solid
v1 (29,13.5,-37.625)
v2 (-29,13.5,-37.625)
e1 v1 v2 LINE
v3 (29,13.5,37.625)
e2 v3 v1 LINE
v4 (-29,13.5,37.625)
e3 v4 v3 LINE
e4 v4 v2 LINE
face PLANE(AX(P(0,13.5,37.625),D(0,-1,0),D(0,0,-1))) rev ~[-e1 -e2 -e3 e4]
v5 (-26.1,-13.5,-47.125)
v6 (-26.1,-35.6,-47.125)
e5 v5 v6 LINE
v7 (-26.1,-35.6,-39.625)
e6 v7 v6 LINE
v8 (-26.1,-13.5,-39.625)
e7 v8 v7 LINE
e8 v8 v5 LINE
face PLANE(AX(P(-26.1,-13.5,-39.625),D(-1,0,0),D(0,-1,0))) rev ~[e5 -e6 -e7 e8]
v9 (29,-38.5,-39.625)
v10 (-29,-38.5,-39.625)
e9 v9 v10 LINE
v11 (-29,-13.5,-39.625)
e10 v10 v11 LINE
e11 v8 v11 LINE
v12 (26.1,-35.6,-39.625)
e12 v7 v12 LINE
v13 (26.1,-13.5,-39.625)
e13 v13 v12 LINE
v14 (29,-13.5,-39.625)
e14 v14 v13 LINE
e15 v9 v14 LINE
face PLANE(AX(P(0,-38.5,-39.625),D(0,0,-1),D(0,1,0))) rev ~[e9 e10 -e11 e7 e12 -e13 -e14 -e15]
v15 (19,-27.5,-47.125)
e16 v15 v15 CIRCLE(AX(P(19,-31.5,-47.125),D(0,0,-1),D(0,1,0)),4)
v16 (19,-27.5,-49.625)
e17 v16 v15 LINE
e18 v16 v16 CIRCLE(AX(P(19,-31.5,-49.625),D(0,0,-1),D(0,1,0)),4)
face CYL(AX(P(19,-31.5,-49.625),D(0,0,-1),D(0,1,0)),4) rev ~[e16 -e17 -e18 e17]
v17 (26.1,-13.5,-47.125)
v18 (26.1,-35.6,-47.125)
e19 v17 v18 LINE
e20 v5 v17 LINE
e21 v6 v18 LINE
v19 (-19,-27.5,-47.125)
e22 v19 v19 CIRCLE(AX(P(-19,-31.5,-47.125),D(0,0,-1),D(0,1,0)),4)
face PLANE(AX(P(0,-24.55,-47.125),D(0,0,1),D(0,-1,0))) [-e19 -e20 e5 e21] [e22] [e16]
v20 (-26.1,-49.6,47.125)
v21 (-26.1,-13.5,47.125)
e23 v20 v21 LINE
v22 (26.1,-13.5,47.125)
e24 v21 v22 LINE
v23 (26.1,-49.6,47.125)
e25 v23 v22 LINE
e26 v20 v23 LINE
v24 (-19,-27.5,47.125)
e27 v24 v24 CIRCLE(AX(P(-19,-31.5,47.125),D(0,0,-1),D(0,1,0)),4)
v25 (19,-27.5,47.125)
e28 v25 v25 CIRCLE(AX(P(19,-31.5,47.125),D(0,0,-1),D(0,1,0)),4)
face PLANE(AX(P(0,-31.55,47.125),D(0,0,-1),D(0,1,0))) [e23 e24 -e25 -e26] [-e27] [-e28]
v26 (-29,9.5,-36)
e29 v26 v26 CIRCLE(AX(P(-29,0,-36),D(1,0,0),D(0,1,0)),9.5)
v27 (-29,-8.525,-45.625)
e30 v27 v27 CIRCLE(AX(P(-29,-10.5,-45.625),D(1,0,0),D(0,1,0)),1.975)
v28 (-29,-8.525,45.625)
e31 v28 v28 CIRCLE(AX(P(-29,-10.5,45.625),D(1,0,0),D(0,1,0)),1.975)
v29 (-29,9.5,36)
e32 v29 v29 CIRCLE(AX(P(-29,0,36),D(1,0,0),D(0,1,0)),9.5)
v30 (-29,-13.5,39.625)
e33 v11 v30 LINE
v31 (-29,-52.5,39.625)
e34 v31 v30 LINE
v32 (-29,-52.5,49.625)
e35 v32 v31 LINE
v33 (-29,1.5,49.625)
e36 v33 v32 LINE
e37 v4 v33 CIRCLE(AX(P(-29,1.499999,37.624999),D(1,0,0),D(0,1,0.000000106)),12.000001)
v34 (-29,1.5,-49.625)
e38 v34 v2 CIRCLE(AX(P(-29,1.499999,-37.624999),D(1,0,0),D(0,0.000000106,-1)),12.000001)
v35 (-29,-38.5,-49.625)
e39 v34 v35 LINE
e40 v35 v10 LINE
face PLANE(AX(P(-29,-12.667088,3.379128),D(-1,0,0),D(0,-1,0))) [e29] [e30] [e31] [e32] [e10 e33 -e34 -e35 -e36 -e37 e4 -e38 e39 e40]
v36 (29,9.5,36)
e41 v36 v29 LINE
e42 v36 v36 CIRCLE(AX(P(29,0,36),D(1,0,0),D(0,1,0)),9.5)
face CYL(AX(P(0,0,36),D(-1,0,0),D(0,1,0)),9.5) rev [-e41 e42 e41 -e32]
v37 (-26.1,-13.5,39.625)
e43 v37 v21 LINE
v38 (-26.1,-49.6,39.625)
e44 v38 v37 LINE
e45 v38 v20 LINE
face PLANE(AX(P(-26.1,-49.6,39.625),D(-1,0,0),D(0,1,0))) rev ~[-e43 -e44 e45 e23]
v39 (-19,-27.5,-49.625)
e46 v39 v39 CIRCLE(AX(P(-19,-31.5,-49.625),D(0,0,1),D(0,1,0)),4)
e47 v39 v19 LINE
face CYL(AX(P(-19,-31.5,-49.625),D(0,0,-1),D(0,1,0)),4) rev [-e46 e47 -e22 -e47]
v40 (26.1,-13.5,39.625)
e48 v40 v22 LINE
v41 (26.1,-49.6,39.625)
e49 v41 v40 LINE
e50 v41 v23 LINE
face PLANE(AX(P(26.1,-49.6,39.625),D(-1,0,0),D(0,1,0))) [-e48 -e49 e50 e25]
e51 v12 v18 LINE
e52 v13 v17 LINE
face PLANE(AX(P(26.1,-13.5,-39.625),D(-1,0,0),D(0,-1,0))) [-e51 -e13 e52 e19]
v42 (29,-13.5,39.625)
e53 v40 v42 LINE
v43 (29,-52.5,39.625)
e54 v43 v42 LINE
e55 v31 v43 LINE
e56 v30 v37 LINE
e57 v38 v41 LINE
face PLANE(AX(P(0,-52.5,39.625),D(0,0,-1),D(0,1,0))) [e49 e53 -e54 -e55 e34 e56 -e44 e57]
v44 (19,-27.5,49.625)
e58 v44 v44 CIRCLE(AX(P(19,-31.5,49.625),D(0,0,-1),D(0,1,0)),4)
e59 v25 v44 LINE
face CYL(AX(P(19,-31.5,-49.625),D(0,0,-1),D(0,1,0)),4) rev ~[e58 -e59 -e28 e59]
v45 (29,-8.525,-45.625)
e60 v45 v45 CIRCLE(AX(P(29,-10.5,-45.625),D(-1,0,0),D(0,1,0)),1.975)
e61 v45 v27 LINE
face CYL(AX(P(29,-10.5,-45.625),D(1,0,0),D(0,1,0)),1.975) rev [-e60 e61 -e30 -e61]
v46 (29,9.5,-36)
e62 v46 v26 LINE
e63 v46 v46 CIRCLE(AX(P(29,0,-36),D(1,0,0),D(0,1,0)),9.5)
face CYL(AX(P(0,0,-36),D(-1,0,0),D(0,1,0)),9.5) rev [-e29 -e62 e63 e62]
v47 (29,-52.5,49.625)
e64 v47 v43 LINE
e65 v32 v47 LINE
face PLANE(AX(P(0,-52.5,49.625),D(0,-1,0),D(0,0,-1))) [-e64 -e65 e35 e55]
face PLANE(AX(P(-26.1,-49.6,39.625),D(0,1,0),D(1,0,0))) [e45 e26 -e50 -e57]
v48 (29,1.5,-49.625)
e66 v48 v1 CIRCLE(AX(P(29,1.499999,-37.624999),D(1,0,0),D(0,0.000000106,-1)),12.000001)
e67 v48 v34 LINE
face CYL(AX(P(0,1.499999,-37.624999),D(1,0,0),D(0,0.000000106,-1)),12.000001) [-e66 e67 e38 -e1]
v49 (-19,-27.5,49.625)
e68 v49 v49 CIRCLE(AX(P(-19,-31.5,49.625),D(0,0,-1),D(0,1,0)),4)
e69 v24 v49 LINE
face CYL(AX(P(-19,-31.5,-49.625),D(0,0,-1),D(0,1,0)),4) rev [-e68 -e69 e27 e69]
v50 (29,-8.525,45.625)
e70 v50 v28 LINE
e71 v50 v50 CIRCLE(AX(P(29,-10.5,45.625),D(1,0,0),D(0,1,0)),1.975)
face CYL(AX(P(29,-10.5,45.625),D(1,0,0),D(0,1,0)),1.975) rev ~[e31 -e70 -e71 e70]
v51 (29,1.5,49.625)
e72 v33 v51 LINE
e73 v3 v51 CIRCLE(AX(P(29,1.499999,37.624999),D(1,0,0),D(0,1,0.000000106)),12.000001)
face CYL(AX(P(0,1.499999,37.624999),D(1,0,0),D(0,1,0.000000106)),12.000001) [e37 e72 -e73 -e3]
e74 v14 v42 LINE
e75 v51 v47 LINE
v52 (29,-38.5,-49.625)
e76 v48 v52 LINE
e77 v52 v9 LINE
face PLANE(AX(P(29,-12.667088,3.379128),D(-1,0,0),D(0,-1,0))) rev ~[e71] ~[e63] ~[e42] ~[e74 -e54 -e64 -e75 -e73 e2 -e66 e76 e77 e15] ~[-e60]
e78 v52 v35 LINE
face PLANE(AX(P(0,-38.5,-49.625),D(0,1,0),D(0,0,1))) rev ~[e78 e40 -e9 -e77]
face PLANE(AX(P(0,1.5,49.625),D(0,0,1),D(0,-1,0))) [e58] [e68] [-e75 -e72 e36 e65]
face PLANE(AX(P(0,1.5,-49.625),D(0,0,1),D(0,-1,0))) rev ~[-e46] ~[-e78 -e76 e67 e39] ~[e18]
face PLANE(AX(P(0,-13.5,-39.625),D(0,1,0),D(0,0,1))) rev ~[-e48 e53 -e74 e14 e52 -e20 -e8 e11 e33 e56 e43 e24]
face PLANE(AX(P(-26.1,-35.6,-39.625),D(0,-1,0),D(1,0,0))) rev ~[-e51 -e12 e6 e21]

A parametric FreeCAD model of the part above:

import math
import FreeCAD as App
import Part
import Sketcher
from FreeCAD import Vector
Q = App.Units.Quantity

doc = App.newDocument("Part")
params = doc.addObject("Spreadsheet::Sheet", "Params")
for row, (alias, value) in enumerate([
    ("sketch1_diameter", "19 mm"),
    ("sketch1_radius", "12.000001 mm"),
    ("sketch1_width", "54 mm"),
    ("sketch1_width2", "39 mm"),
    ("sketch1_width3", "25 mm"),
    ("pad1_length", "58 mm"),
    ("sketch2_width", "52.2 mm"),
    ("sketch2_height", "22.1 mm"),
    ("pocket1_length", "7.5 mm"),
    ("sketch3_width", "52.2 mm"),
    ("sketch3_height", "36.1 mm"),
    ("pocket2_length", "7.5 mm"),
    ("sketch4_diameter", "8 mm"),
    ("sketch5_diameter", "3.95 mm"),
], start=1):
    params.set(f"A{row}", alias)
    params.set(f"B{row}", "=" + value)
    params.setAlias(f"B{row}", alias)

body = doc.addObject("PartDesign::Body", "Body")

# Sketch on YZ plane
sketch1 = doc.addObject("Sketcher::SketchObject", "Sketch")
body.addObject(sketch1)
sketch1.AttachmentSupport = (doc.YZ_Plane, [""])
sketch1.MapMode = "FlatFace"
sketch1.addGeometry([
    Part.LineSegment(Vector(14, -38, 0), Vector(14, 38, 0)),  # 0
    Part.ArcOfCircle(Part.Circle(Vector(1, 38, 0), Vector(0, 0, 1), 12), math.radians(0), math.radians(90)),  # 1
    Part.LineSegment(Vector(2, 50, 0), Vector(-52, 50, 0)),  # 2
    Part.LineSegment(Vector(-52, 50, 0), Vector(-52, 40, 0)),  # 3
    Part.LineSegment(Vector(-52, 40, 0), Vector(-14, 40, 0)),  # 4
    Part.LineSegment(Vector(-14, 40, 0), Vector(-14, -40, 0)),  # 5
    Part.LineSegment(Vector(-14, -40, 0), Vector(-38, -40, 0)),  # 6
    Part.LineSegment(Vector(-38, -40, 0), Vector(-38, -50, 0)),  # 7
    Part.LineSegment(Vector(-38, -50, 0), Vector(2, -50, 0)),  # 8
    Part.ArcOfCircle(Part.Circle(Vector(1, -38, 0), Vector(0, 0, 1), 12), math.radians(-90), math.radians(0)),  # 9
    Part.Circle(Vector(0, -36, 0), Vector(0, 0, 1), 10),  # 10
    Part.Circle(Vector(0, 36, 0), Vector(0, 0, 1), 10),  # 11
], False)
sketch1.addConstraint([
    Sketcher.Constraint("Tangent", 0, 2, 1, 1),
    Sketcher.Constraint("Tangent", 1, 2, 2, 1),
    Sketcher.Constraint("Coincident", 2, 2, 3, 1),
    Sketcher.Constraint("Coincident", 3, 2, 4, 1),
    Sketcher.Constraint("Coincident", 4, 2, 5, 1),
    Sketcher.Constraint("Coincident", 5, 2, 6, 1),
    Sketcher.Constraint("Coincident", 6, 2, 7, 1),
    Sketcher.Constraint("Coincident", 7, 2, 8, 1),
    Sketcher.Constraint("Tangent", 8, 2, 9, 1),
    Sketcher.Constraint("Tangent", 9, 2, 0, 1),
    Sketcher.Constraint("Vertical", 0),
    Sketcher.Constraint("Horizontal", 2),
    Sketcher.Constraint("Vertical", 3),
    Sketcher.Constraint("Horizontal", 4),
    Sketcher.Constraint("Vertical", 5),
    Sketcher.Constraint("Horizontal", 6),
    Sketcher.Constraint("Vertical", 7),
    Sketcher.Constraint("Horizontal", 8),
    Sketcher.Constraint("Equal", 1, 9),
    Sketcher.Constraint("Equal", 10, 11),
    Sketcher.Constraint("Symmetric", 10, 3, 11, 3, -1, 1),
    Sketcher.Constraint("PointOnObject", 10, 3, -2),
    Sketcher.Constraint("Equal", 3, 7),
    Sketcher.Constraint("Diameter", 10, Q("19 mm")),
    Sketcher.Constraint("Radius", 1, Q("12.000001 mm")),
    Sketcher.Constraint("DistanceX", 2, 2, 2, 1, Q("54 mm")),
    Sketcher.Constraint("DistanceX", 4, 1, 4, 2, Q("39 mm")),
    Sketcher.Constraint("DistanceX", 6, 2, 6, 1, Q("25 mm")),
    Sketcher.Constraint("DistanceY", 3, 2, 3, 1, Q("10 mm")),
    Sketcher.Constraint("DistanceY", 10, 3, -1, 1, Q("36 mm")),
    Sketcher.Constraint("DistanceY", 0, 1, 0, 2, Q("75.25 mm")),
    Sketcher.Constraint("DistanceX", -1, 1, 1, 3, Q("1.499999 mm")),
    Sketcher.Constraint("DistanceY", -1, 1, 1, 3, Q("37.624999 mm")),
])
sketch1.setExpression("Constraints[23]", "Params.sketch1_diameter")
sketch1.setExpression("Constraints[24]", "Params.sketch1_radius")
sketch1.setExpression("Constraints[25]", "Params.sketch1_width")
sketch1.setExpression("Constraints[26]", "Params.sketch1_width2")
sketch1.setExpression("Constraints[27]", "Params.sketch1_width3")
pad1 = doc.addObject("PartDesign::Pad", "Pad")
body.addObject(pad1)
pad1.Profile = sketch1
pad1.setExpression("Length", "Params.pad1_length")
pad1.Midplane = True

# Sketch on XY plane
sketch2 = doc.addObject("Sketcher::SketchObject", "Sketch001")
body.addObject(sketch2)
sketch2.AttachmentSupport = (doc.XY_Plane, [""])
sketch2.MapMode = "FlatFace"
sketch2.AttachmentOffset = App.Placement(Vector(0, 0, -39.625), App.Rotation())
sketch2.addGeometry([
    Part.LineSegment(Vector(26, -14, 0), Vector(-26, -14, 0)),
    Part.LineSegment(Vector(-26, -14, 0), Vector(-26, -36, 0)),
    Part.LineSegment(Vector(-26, -36, 0), Vector(26, -36, 0)),
    Part.LineSegment(Vector(26, -36, 0), Vector(26, -14, 0)),
], False)
sketch2.addConstraint([
    Sketcher.Constraint("Coincident", 0, 2, 1, 1),
    Sketcher.Constraint("Coincident", 1, 2, 2, 1),
    Sketcher.Constraint("Coincident", 2, 2, 3, 1),
    Sketcher.Constraint("Coincident", 3, 2, 0, 1),
    Sketcher.Constraint("Horizontal", 0),
    Sketcher.Constraint("Vertical", 1),
    Sketcher.Constraint("Horizontal", 2),
    Sketcher.Constraint("Vertical", 3),
    Sketcher.Constraint("DistanceX", 0, 2, 0, 1, Q("52.2 mm")),
    Sketcher.Constraint("DistanceY", 1, 2, 1, 1, Q("22.1 mm")),
    Sketcher.Constraint("DistanceX", 0, 2, -1, 1, Q("26.1 mm")),
    Sketcher.Constraint("DistanceY", 0, 2, -1, 1, Q("13.5 mm")),
])
sketch2.setExpression("Constraints[8]", "Params.sketch2_width")
sketch2.setExpression("Constraints[9]", "Params.sketch2_height")
pocket1 = doc.addObject("PartDesign::Pocket", "Pocket")
body.addObject(pocket1)
pocket1.Profile = sketch2
pocket1.setExpression("Length", "Params.pocket1_length")

# Sketch on XY plane
sketch3 = doc.addObject("Sketcher::SketchObject", "Sketch002")
body.addObject(sketch3)
sketch3.AttachmentSupport = (doc.XY_Plane, [""])
sketch3.MapMode = "FlatFace"
sketch3.AttachmentOffset = App.Placement(Vector(0, 0, 39.625), App.Rotation())
sketch3.addGeometry([
    Part.LineSegment(Vector(26, -50, 0), Vector(-26, -50, 0)),
    Part.LineSegment(Vector(-26, -50, 0), Vector(-26, -14, 0)),
    Part.LineSegment(Vector(-26, -14, 0), Vector(26, -14, 0)),
    Part.LineSegment(Vector(26, -14, 0), Vector(26, -50, 0)),
], False)
sketch3.addConstraint([
    Sketcher.Constraint("Coincident", 0, 2, 1, 1),
    Sketcher.Constraint("Coincident", 1, 2, 2, 1),
    Sketcher.Constraint("Coincident", 2, 2, 3, 1),
    Sketcher.Constraint("Coincident", 3, 2, 0, 1),
    Sketcher.Constraint("Horizontal", 0),
    Sketcher.Constraint("Vertical", 1),
    Sketcher.Constraint("Horizontal", 2),
    Sketcher.Constraint("Vertical", 3),
    Sketcher.Constraint("DistanceX", 0, 2, 0, 1, Q("52.2 mm")),
    Sketcher.Constraint("DistanceY", 1, 1, 1, 2, Q("36.1 mm")),
    Sketcher.Constraint("DistanceX", 0, 2, -1, 1, Q("26.1 mm")),
    Sketcher.Constraint("DistanceY", 0, 2, -1, 1, Q("49.6 mm")),
])
sketch3.setExpression("Constraints[8]", "Params.sketch3_width")
sketch3.setExpression("Constraints[9]", "Params.sketch3_height")
pocket2 = doc.addObject("PartDesign::Pocket", "Pocket001")
body.addObject(pocket2)
pocket2.Profile = sketch3
pocket2.setExpression("Length", "Params.pocket2_length")
pocket2.Reversed = True

# Sketch on XY plane
sketch4 = doc.addObject("Sketcher::SketchObject", "Sketch003")
body.addObject(sketch4)
sketch4.AttachmentSupport = (doc.XY_Plane, [""])
sketch4.MapMode = "FlatFace"
sketch4.AttachmentOffset = App.Placement(Vector(0, 0, -49.625), App.Rotation())
sketch4.addGeometry(Part.Circle(Vector(19, -31.5, 0), Vector(0, 0, 1), 4), False)
sketch4.addConstraint([
    Sketcher.Constraint("Diameter", 0, Q("8 mm")),
    Sketcher.Constraint("DistanceX", -1, 1, 0, 3, Q("19 mm")),
    Sketcher.Constraint("DistanceY", 0, 3, -1, 1, Q("31.5 mm")),
])
sketch4.setExpression("Constraints[0]", "Params.sketch4_diameter")
pocket3 = doc.addObject("PartDesign::Pocket", "Pocket002")
body.addObject(pocket3)
pocket3.Profile = sketch4
pocket3.Type = "ThroughAll"
pocket3.Reversed = True
doc.recompute()

mirrored = doc.addObject("PartDesign::Mirrored", "Mirrored")
body.addObject(mirrored)
mirrored.Originals = [pocket3]
mirrored.MirrorPlane = (doc.YZ_Plane, [""])
body.Tip = mirrored

# Sketch on YZ plane
sketch5 = doc.addObject("Sketcher::SketchObject", "Sketch004")
body.addObject(sketch5)
sketch5.AttachmentSupport = (doc.YZ_Plane, [""])
sketch5.MapMode = "FlatFace"
sketch5.AttachmentOffset = App.Placement(Vector(0, 0, 29), App.Rotation())
sketch5.addGeometry(Part.Circle(Vector(-10.5, 45.6, 0), Vector(0, 0, 1), 2), False)
sketch5.addConstraint([
    Sketcher.Constraint("Diameter", 0, Q("3.95 mm")),
    Sketcher.Constraint("DistanceX", 0, 3, -1, 1, Q("10.5 mm")),
    Sketcher.Constraint("DistanceY", -1, 1, 0, 3, Q("45.625 mm")),
])
sketch5.setExpression("Constraints[0]", "Params.sketch5_diameter")
pocket4 = doc.addObject("PartDesign::Pocket", "Pocket003")
body.addObject(pocket4)
pocket4.Profile = sketch5
pocket4.Type = "ThroughAll"
doc.recompute()

mirrored2 = doc.addObject("PartDesign::Mirrored", "Mirrored001")
body.addObject(mirrored2)
mirrored2.Originals = [pocket4]
mirrored2.MirrorPlane = (doc.XY_Plane, [""])
body.Tip = mirrored2

doc.recompute()
